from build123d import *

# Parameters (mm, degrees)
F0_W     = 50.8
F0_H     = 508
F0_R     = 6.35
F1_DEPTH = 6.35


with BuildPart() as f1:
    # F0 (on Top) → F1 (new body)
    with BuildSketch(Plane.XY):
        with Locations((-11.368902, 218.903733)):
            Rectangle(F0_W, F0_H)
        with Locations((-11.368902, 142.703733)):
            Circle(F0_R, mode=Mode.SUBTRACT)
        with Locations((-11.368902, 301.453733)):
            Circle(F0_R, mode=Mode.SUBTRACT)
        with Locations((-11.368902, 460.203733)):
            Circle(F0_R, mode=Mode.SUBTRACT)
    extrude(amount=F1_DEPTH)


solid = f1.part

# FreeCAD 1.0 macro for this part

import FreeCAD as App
import Part
import Sketcher

V = App.Vector
Q = App.Units.Quantity


def add_polygon(sketch, points):
    """Adds a closed chain of lines whose ends are joined by coincident constraints."""
    first, n = sketch.GeometryCount, len(points)
    for a, b in zip(points, points[1:] + points[:1]):
        sketch.addGeometry(Part.LineSegment(App.Vector(*a, 0), App.Vector(*b, 0)), False)
    for i in range(n):
        sketch.addConstraint(Sketcher.Constraint("Coincident", first + i, 2, first + (i + 1) % n, 1))

doc = App.newDocument("Part")
body = doc.addObject("PartDesign::Body", "Body")

sketch1 = body.newObject("Sketcher::SketchObject", "Sketch")
sketch1.AttachmentSupport = (doc.getObject("XY_Plane"), [""])
sketch1.MapMode = "FlatFace"
add_polygon(sketch1, [(-37, 473), (-37, -35), (14, -35), (14, 473)])
sketch1.addGeometry(Part.Circle(V(-11, 143, 0), V(0, 0, 1), 6), False)
sketch1.addGeometry(Part.Circle(V(-11, 301, 0), V(0, 0, 1), 6), False)
sketch1.addGeometry(Part.Circle(V(-11, 460, 0), V(0, 0, 1), 6), False)
sketch1.addConstraint(Sketcher.Constraint("Vertical", 0))
sketch1.addConstraint(Sketcher.Constraint("Horizontal", 1))
sketch1.addConstraint(Sketcher.Constraint("Vertical", 2))
sketch1.addConstraint(Sketcher.Constraint("Horizontal", 3))
sketch1.addConstraint(Sketcher.Constraint("Equal", 4, 5))
sketch1.addConstraint(Sketcher.Constraint("Equal", 5, 6))
sketch1.addConstraint(Sketcher.Constraint("Vertical", 4, 3, 5, 3))
sketch1.addConstraint(Sketcher.Constraint("Vertical", 5, 3, 6, 3))
sketch1.addConstraint(Sketcher.Constraint("Diameter", 4, Q("0.5 in")))
sketch1.addConstraint(Sketcher.Constraint("DistanceX", 1, 1, 1, 2, Q("2 in")))
sketch1.addConstraint(Sketcher.Constraint("DistanceY", 0, 2, 0, 1, Q("20 in")))
sketch1.addConstraint(Sketcher.Constraint("DistanceX", 0, 2, 4, 3, Q("1 in")))
sketch1.addConstraint(Sketcher.Constraint("DistanceY", 0, 2, 4, 3, Q("7 in")))
sketch1.addConstraint(Sketcher.Constraint("DistanceY", 4, 3, 6, 3, Q("12.5 in")))
sketch1.addConstraint(Sketcher.Constraint("DistanceY", 4, 3, 5, 3, Q("6.25 in")))
sketch1.addConstraint(Sketcher.Constraint("DistanceX", 0, 2, -1, 1, Q("36.768902 mm")))
sketch1.addConstraint(Sketcher.Constraint("DistanceY", -1, 1, 4, 3, Q("142.703733 mm")))
pad1 = body.newObject("PartDesign::Pad", "Pad")
pad1.Profile = sketch1
pad1.Length = Q("0.25 in")

doc.recompute()
